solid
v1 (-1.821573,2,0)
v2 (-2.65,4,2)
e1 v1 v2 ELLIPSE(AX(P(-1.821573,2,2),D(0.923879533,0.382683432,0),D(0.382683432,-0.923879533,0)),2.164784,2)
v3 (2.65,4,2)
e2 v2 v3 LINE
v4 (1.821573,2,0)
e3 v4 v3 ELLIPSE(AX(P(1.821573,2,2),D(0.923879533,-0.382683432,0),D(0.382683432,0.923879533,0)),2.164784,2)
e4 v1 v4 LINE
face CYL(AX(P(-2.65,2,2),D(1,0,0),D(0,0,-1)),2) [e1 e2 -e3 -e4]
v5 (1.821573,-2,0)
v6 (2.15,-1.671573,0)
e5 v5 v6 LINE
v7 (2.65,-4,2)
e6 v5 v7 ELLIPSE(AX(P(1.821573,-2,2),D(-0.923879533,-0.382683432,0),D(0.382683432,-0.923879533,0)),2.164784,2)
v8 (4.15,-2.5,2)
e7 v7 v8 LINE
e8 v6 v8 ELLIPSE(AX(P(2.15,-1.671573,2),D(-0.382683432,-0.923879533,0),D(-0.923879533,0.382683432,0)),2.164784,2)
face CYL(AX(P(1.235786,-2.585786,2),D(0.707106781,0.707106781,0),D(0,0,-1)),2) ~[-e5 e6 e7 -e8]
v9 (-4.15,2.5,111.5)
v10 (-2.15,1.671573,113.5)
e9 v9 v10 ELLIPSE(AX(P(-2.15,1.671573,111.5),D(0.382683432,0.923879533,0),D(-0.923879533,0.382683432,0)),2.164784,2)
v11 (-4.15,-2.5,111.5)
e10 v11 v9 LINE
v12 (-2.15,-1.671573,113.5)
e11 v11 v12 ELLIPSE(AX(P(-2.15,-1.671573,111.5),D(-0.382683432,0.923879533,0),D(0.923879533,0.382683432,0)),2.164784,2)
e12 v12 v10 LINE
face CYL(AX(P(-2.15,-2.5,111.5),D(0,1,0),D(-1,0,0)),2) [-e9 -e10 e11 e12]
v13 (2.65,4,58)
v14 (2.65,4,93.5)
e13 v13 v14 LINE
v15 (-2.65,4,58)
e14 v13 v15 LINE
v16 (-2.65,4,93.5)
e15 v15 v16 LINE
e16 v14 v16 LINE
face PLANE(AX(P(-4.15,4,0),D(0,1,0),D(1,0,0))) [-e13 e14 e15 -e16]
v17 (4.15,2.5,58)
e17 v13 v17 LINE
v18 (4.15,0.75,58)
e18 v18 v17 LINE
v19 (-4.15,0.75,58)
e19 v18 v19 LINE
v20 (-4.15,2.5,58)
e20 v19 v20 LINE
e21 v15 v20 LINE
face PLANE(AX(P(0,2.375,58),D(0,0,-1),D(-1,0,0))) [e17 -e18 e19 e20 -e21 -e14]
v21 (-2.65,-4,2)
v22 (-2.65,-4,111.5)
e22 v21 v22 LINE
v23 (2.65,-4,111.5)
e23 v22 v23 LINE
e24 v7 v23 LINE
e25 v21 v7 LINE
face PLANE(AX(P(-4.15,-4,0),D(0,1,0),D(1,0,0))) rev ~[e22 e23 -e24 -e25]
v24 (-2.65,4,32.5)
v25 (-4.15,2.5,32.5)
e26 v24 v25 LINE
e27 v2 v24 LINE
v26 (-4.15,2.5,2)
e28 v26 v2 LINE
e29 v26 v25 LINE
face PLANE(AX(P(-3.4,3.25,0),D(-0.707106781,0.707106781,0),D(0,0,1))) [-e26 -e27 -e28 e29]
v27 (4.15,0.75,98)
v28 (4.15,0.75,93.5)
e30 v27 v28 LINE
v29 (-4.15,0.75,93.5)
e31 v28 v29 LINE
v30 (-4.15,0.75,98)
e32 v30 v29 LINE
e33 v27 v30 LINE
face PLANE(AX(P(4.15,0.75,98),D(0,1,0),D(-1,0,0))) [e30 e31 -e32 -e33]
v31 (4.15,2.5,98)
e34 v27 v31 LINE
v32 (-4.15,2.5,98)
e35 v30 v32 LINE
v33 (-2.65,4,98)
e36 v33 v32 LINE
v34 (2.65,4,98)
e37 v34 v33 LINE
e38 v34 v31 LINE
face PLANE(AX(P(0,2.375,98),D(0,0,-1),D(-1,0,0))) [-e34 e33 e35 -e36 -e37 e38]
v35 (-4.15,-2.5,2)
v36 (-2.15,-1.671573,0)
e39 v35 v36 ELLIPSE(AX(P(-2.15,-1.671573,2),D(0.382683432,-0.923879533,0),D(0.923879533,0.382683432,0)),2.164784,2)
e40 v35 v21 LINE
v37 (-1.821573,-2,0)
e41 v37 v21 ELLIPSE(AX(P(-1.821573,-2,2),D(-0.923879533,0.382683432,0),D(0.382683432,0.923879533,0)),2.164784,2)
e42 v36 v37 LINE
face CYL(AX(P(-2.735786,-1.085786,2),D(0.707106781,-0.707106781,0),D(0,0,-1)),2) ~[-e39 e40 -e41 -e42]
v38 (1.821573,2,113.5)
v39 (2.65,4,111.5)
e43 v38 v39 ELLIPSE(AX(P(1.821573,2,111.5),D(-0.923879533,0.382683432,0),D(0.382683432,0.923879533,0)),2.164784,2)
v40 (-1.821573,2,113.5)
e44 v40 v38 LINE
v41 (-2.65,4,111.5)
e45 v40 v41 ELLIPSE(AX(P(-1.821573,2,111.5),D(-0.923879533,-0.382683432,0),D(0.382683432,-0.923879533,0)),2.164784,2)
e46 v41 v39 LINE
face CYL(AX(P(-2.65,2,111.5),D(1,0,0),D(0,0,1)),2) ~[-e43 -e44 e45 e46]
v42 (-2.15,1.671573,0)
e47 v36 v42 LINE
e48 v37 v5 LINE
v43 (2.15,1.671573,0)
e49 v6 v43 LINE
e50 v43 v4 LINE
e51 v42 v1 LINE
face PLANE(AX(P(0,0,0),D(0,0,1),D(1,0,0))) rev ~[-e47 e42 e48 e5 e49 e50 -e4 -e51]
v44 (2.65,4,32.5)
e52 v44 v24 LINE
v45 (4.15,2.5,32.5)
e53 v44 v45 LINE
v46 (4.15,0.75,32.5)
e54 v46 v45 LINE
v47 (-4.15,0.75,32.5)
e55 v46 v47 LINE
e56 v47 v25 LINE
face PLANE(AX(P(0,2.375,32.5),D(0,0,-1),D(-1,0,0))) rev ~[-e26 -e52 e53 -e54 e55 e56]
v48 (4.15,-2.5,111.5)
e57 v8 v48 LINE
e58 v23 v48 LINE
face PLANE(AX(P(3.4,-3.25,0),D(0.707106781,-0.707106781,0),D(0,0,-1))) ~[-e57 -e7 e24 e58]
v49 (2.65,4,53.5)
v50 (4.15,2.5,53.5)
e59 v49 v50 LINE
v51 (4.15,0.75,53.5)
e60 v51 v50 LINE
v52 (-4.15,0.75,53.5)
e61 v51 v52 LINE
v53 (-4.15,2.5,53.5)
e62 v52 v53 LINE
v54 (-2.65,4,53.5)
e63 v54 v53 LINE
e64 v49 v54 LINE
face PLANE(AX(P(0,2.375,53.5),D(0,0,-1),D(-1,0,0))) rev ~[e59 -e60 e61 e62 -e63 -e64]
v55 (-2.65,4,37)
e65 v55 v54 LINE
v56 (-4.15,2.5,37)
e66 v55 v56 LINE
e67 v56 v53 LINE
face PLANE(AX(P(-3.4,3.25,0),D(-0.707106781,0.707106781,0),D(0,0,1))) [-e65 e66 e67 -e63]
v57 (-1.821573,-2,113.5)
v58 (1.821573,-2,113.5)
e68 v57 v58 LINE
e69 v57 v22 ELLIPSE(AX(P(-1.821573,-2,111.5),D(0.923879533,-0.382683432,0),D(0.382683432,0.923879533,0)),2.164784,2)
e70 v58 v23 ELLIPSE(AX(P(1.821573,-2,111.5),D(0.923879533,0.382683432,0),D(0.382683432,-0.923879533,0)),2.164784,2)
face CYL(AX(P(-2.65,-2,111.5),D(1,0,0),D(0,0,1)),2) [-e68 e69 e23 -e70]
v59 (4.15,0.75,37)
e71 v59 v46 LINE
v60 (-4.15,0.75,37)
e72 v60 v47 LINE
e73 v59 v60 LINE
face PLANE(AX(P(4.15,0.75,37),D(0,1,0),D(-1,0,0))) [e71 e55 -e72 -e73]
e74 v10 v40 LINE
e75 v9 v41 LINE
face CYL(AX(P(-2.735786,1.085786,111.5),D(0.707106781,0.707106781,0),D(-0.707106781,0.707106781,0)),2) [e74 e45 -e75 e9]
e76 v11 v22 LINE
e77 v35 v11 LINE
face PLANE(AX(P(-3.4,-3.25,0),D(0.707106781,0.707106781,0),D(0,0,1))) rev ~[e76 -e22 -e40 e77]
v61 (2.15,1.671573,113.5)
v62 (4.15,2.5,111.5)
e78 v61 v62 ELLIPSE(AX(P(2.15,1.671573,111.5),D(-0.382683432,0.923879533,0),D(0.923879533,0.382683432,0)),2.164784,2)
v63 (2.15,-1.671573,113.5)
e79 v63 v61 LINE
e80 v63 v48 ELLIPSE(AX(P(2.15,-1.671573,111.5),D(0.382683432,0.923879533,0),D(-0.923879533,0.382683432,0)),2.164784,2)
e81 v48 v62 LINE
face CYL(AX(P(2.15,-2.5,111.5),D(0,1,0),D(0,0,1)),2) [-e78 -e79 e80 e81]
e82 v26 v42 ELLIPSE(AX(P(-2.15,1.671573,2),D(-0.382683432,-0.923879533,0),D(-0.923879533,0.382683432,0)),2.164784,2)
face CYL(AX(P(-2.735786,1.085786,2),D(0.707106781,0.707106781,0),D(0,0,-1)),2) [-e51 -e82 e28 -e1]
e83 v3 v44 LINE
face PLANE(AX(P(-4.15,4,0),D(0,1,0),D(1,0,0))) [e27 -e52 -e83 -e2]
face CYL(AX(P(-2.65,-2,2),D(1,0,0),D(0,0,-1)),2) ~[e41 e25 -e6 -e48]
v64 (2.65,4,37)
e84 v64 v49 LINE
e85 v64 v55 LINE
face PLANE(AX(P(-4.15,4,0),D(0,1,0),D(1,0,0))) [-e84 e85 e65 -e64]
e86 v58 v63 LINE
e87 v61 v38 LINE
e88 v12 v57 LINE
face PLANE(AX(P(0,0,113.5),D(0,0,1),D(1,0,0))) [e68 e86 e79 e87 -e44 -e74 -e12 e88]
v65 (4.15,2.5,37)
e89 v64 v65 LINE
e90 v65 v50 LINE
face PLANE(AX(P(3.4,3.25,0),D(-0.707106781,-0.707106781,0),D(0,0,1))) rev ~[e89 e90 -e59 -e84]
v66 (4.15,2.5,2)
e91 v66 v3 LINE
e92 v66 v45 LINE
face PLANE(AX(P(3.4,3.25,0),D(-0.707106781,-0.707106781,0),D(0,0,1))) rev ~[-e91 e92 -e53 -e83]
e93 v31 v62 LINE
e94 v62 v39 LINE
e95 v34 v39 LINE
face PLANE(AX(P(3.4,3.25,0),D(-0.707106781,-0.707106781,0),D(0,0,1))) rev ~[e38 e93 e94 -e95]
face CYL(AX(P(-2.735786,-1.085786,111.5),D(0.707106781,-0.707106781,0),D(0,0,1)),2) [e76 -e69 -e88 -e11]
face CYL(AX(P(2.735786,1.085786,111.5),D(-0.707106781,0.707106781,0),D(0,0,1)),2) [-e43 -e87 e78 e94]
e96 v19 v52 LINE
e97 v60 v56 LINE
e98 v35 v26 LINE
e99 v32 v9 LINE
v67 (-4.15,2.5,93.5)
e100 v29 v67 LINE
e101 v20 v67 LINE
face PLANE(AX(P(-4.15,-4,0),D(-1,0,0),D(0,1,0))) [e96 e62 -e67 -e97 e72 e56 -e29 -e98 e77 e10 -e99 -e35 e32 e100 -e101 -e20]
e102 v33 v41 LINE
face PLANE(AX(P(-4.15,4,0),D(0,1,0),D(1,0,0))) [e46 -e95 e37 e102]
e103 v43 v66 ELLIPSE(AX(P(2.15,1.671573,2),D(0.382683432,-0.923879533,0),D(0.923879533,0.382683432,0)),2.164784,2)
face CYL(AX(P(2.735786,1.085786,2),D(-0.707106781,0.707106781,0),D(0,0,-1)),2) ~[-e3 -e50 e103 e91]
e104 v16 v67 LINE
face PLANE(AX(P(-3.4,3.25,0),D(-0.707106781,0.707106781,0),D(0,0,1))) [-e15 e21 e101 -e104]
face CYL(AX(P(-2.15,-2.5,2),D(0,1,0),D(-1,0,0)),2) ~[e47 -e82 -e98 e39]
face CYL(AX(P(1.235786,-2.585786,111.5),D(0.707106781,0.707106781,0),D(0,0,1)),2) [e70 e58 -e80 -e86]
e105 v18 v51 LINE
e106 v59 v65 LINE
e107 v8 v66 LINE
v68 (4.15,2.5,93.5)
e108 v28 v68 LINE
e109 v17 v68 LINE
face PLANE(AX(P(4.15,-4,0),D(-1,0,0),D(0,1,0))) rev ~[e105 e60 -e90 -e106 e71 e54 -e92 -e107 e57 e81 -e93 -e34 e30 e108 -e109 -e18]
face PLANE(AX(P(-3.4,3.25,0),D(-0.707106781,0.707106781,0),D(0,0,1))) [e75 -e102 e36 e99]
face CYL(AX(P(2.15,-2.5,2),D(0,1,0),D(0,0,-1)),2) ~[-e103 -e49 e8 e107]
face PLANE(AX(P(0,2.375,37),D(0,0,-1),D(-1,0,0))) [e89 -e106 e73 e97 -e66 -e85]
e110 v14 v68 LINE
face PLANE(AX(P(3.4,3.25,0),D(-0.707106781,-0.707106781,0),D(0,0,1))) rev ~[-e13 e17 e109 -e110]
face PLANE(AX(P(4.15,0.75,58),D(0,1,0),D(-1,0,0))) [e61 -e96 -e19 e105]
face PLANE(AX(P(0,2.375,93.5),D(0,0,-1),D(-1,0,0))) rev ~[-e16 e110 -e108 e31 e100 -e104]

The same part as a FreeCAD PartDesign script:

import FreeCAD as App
import Part
import Sketcher
from FreeCAD import Vector
Q = App.Units.Quantity


def edges_at(feature, points):
    """Names of the edges that pass closest to the given points."""
    edges = feature.Shape.Edges
    near = lambda p: min(range(len(edges)), key=lambda i: edges[i].distToShape(Part.Vertex(*p))[0])
    return sorted({f"Edge{near(p) + 1}" for p in points})

doc = App.newDocument("Part")
body = doc.addObject("PartDesign::Body", "Body")

# Sketch on XY plane
sketch1 = body.newObject("Sketcher::SketchObject", "Sketch")
sketch1.AttachmentSupport = (doc.getObject("XY_Plane"), [""])
sketch1.MapMode = "FlatFace"
sketch1.addGeometry([
    Part.LineSegment(Vector(-4, 4, 0), Vector(-4, -4, 0)),
    Part.LineSegment(Vector(-4, -4, 0), Vector(4, -4, 0)),
    Part.LineSegment(Vector(4, -4, 0), Vector(4, 4, 0)),
    Part.LineSegment(Vector(4, 4, 0), Vector(-4, 4, 0)),
], False)
sketch1.addConstraint([
    Sketcher.Constraint("Coincident", 0, 2, 1, 1),
    Sketcher.Constraint("Coincident", 1, 2, 2, 1),
    Sketcher.Constraint("Coincident", 2, 2, 3, 1),
    Sketcher.Constraint("Coincident", 3, 2, 0, 1),
    Sketcher.Constraint("Vertical", 0),
    Sketcher.Constraint("Horizontal", 1),
    Sketcher.Constraint("Vertical", 2),
    Sketcher.Constraint("Horizontal", 3),
    Sketcher.Constraint("Symmetric", 0, 2, 2, 2, -1, 1),
    Sketcher.Constraint("DistanceY", 0, 2, 0, 1, Q("8 mm")),
    Sketcher.Constraint("DistanceX", 1, 1, 1, 2, Q("8.3 mm")),
])
pad1 = body.newObject("PartDesign::Pad", "Pad")
pad1.Profile = sketch1
pad1.Length = 113.5
doc.recompute()

chamfer = body.newObject("PartDesign::Chamfer", "Chamfer")
chamfer.Base = (pad1, edges_at(pad1, [
    (-4.15, 4, 56.75),
    (4.15, 4, 56.75),
    (4.15, -4, 56.75),
    (-4.15, -4, 56.75),
]))
chamfer.Size = 1.5

# Sketch on XY plane
sketch2 = body.newObject("Sketcher::SketchObject", "Sketch001")
sketch2.AttachmentSupport = (doc.getObject("XY_Plane"), [""])
sketch2.MapMode = "FlatFace"
sketch2.AttachmentOffset = App.Placement(Vector(0, 0, 58), App.Rotation())
sketch2.addGeometry([
    Part.LineSegment(Vector(4.2, 4, 0), Vector(4.2, 0.8, 0)),
    Part.LineSegment(Vector(4.2, 0.8, 0), Vector(-4.2, 0.8, 0)),
    Part.LineSegment(Vector(-4.2, 0.8, 0), Vector(-4.2, 4, 0)),
    Part.LineSegment(Vector(-4.2, 4, 0), Vector(4.2, 4, 0)),
], False)
sketch2.addConstraint([
    Sketcher.Constraint("Coincident", 0, 2, 1, 1),
    Sketcher.Constraint("Coincident", 1, 2, 2, 1),
    Sketcher.Constraint("Coincident", 2, 2, 3, 1),
    Sketcher.Constraint("Coincident", 3, 2, 0, 1),
    Sketcher.Constraint("Vertical", 0),
    Sketcher.Constraint("Horizontal", 1),
    Sketcher.Constraint("Vertical", 2),
    Sketcher.Constraint("Horizontal", 3),
    Sketcher.Constraint("DistanceX", 1, 2, 1, 1, Q("8.3 mm")),
    Sketcher.Constraint("DistanceY", -1, 1, 2, 2, Q("4 mm")),
    Sketcher.Constraint("DistanceY", 0, 2, 0, 1, Q("3.25 mm")),
    Sketcher.Constraint("DistanceX", -1, 1, 0, 2, Q("4.15 mm")),
])
pocket1 = body.newObject("PartDesign::Pocket", "Pocket")
pocket1.Profile = sketch2
pocket1.Length = 4.5

# Sketch on XY plane
sketch3 = body.newObject("Sketcher::SketchObject", "Sketch002")
sketch3.AttachmentSupport = (doc.getObject("XY_Plane"), [""])
sketch3.MapMode = "FlatFace"
sketch3.AttachmentOffset = App.Placement(Vector(0, 0, 98), App.Rotation())
sketch3.addGeometry([
    Part.LineSegment(Vector(4.2, 4, 0), Vector(4.2, 0.8, 0)),
    Part.LineSegment(Vector(4.2, 0.8, 0), Vector(-4.2, 0.8, 0)),
    Part.LineSegment(Vector(-4.2, 0.8, 0), Vector(-4.2, 4, 0)),
    Part.LineSegment(Vector(-4.2, 4, 0), Vector(4.2, 4, 0)),
], False)
sketch3.addConstraint([
    Sketcher.Constraint("Coincident", 0, 2, 1, 1),
    Sketcher.Constraint("Coincident", 1, 2, 2, 1),
    Sketcher.Constraint("Coincident", 2, 2, 3, 1),
    Sketcher.Constraint("Coincident", 3, 2, 0, 1),
    Sketcher.Constraint("Vertical", 0),
    Sketcher.Constraint("Horizontal", 1),
    Sketcher.Constraint("Vertical", 2),
    Sketcher.Constraint("Horizontal", 3),
    Sketcher.Constraint("DistanceX", 1, 2, 1, 1, Q("8.3 mm")),
    Sketcher.Constraint("DistanceY", -1, 1, 2, 2, Q("4 mm")),
    Sketcher.Constraint("DistanceY", 0, 2, 0, 1, Q("3.25 mm")),
    Sketcher.Constraint("DistanceX", -1, 1, 0, 2, Q("4.15 mm")),
])
pocket2 = body.newObject("PartDesign::Pocket", "Pocket001")
pocket2.Profile = sketch3
pocket2.Length = 4.5
doc.recompute()

fillet = body.newObject("PartDesign::Fillet", "Fillet")
fillet.Base = (pocket2, edges_at(pocket2, [
    (4.15, 0, 0),
    (4.15, 0, 113.5),
    (-4.15, 0, 0),
    (0, 4, 0),
    (0, -4, 0),
    (-3.4, 3.25, 0),
    (3.4, 3.25, 0),
    (-3.4, -3.25, 0),
    (3.4, -3.25, 0),
    (0, -4, 113.5),
    (-4.15, 0, 113.5),
    (0, 4, 113.5),
    (-3.4, 3.25, 113.5),
    (3.4, 3.25, 113.5),
    (-3.4, -3.25, 113.5),
    (3.4, -3.25, 113.5),
]))
fillet.Radius = 2

# Sketch on XY plane
sketch4 = body.newObject("Sketcher::SketchObject", "Sketch003")
sketch4.AttachmentSupport = (doc.getObject("XY_Plane"), [""])
sketch4.MapMode = "FlatFace"
sketch4.AttachmentOffset = App.Placement(Vector(0, 0, 37), App.Rotation())
sketch4.addGeometry([
    Part.LineSegment(Vector(4.2, 4, 0), Vector(4.2, 0.8, 0)),
    Part.LineSegment(Vector(4.2, 0.8, 0), Vector(-4.2, 0.8, 0)),
    Part.LineSegment(Vector(-4.2, 0.8, 0), Vector(-4.2, 4, 0)),
    Part.LineSegment(Vector(-4.2, 4, 0), Vector(4.2, 4, 0)),
], False)
sketch4.addConstraint([
    Sketcher.Constraint("Coincident", 0, 2, 1, 1),
    Sketcher.Constraint("Coincident", 1, 2, 2, 1),
    Sketcher.Constraint("Coincident", 2, 2, 3, 1),
    Sketcher.Constraint("Coincident", 3, 2, 0, 1),
    Sketcher.Constraint("Vertical", 0),
    Sketcher.Constraint("Horizontal", 1),
    Sketcher.Constraint("Vertical", 2),
    Sketcher.Constraint("Horizontal", 3),
    Sketcher.Constraint("DistanceX", 1, 2, 1, 1, Q("8.3 mm")),
    Sketcher.Constraint("DistanceY", -1, 1, 2, 2, Q("4 mm")),
    Sketcher.Constraint("DistanceY", 0, 2, 0, 1, Q("3.25 mm")),
    Sketcher.Constraint("DistanceX", -1, 1, 0, 2, Q("4.15 mm")),
])
pocket3 = body.newObject("PartDesign::Pocket", "Pocket002")
pocket3.Profile = sketch4
pocket3.Length = 4.5

doc.recompute()
